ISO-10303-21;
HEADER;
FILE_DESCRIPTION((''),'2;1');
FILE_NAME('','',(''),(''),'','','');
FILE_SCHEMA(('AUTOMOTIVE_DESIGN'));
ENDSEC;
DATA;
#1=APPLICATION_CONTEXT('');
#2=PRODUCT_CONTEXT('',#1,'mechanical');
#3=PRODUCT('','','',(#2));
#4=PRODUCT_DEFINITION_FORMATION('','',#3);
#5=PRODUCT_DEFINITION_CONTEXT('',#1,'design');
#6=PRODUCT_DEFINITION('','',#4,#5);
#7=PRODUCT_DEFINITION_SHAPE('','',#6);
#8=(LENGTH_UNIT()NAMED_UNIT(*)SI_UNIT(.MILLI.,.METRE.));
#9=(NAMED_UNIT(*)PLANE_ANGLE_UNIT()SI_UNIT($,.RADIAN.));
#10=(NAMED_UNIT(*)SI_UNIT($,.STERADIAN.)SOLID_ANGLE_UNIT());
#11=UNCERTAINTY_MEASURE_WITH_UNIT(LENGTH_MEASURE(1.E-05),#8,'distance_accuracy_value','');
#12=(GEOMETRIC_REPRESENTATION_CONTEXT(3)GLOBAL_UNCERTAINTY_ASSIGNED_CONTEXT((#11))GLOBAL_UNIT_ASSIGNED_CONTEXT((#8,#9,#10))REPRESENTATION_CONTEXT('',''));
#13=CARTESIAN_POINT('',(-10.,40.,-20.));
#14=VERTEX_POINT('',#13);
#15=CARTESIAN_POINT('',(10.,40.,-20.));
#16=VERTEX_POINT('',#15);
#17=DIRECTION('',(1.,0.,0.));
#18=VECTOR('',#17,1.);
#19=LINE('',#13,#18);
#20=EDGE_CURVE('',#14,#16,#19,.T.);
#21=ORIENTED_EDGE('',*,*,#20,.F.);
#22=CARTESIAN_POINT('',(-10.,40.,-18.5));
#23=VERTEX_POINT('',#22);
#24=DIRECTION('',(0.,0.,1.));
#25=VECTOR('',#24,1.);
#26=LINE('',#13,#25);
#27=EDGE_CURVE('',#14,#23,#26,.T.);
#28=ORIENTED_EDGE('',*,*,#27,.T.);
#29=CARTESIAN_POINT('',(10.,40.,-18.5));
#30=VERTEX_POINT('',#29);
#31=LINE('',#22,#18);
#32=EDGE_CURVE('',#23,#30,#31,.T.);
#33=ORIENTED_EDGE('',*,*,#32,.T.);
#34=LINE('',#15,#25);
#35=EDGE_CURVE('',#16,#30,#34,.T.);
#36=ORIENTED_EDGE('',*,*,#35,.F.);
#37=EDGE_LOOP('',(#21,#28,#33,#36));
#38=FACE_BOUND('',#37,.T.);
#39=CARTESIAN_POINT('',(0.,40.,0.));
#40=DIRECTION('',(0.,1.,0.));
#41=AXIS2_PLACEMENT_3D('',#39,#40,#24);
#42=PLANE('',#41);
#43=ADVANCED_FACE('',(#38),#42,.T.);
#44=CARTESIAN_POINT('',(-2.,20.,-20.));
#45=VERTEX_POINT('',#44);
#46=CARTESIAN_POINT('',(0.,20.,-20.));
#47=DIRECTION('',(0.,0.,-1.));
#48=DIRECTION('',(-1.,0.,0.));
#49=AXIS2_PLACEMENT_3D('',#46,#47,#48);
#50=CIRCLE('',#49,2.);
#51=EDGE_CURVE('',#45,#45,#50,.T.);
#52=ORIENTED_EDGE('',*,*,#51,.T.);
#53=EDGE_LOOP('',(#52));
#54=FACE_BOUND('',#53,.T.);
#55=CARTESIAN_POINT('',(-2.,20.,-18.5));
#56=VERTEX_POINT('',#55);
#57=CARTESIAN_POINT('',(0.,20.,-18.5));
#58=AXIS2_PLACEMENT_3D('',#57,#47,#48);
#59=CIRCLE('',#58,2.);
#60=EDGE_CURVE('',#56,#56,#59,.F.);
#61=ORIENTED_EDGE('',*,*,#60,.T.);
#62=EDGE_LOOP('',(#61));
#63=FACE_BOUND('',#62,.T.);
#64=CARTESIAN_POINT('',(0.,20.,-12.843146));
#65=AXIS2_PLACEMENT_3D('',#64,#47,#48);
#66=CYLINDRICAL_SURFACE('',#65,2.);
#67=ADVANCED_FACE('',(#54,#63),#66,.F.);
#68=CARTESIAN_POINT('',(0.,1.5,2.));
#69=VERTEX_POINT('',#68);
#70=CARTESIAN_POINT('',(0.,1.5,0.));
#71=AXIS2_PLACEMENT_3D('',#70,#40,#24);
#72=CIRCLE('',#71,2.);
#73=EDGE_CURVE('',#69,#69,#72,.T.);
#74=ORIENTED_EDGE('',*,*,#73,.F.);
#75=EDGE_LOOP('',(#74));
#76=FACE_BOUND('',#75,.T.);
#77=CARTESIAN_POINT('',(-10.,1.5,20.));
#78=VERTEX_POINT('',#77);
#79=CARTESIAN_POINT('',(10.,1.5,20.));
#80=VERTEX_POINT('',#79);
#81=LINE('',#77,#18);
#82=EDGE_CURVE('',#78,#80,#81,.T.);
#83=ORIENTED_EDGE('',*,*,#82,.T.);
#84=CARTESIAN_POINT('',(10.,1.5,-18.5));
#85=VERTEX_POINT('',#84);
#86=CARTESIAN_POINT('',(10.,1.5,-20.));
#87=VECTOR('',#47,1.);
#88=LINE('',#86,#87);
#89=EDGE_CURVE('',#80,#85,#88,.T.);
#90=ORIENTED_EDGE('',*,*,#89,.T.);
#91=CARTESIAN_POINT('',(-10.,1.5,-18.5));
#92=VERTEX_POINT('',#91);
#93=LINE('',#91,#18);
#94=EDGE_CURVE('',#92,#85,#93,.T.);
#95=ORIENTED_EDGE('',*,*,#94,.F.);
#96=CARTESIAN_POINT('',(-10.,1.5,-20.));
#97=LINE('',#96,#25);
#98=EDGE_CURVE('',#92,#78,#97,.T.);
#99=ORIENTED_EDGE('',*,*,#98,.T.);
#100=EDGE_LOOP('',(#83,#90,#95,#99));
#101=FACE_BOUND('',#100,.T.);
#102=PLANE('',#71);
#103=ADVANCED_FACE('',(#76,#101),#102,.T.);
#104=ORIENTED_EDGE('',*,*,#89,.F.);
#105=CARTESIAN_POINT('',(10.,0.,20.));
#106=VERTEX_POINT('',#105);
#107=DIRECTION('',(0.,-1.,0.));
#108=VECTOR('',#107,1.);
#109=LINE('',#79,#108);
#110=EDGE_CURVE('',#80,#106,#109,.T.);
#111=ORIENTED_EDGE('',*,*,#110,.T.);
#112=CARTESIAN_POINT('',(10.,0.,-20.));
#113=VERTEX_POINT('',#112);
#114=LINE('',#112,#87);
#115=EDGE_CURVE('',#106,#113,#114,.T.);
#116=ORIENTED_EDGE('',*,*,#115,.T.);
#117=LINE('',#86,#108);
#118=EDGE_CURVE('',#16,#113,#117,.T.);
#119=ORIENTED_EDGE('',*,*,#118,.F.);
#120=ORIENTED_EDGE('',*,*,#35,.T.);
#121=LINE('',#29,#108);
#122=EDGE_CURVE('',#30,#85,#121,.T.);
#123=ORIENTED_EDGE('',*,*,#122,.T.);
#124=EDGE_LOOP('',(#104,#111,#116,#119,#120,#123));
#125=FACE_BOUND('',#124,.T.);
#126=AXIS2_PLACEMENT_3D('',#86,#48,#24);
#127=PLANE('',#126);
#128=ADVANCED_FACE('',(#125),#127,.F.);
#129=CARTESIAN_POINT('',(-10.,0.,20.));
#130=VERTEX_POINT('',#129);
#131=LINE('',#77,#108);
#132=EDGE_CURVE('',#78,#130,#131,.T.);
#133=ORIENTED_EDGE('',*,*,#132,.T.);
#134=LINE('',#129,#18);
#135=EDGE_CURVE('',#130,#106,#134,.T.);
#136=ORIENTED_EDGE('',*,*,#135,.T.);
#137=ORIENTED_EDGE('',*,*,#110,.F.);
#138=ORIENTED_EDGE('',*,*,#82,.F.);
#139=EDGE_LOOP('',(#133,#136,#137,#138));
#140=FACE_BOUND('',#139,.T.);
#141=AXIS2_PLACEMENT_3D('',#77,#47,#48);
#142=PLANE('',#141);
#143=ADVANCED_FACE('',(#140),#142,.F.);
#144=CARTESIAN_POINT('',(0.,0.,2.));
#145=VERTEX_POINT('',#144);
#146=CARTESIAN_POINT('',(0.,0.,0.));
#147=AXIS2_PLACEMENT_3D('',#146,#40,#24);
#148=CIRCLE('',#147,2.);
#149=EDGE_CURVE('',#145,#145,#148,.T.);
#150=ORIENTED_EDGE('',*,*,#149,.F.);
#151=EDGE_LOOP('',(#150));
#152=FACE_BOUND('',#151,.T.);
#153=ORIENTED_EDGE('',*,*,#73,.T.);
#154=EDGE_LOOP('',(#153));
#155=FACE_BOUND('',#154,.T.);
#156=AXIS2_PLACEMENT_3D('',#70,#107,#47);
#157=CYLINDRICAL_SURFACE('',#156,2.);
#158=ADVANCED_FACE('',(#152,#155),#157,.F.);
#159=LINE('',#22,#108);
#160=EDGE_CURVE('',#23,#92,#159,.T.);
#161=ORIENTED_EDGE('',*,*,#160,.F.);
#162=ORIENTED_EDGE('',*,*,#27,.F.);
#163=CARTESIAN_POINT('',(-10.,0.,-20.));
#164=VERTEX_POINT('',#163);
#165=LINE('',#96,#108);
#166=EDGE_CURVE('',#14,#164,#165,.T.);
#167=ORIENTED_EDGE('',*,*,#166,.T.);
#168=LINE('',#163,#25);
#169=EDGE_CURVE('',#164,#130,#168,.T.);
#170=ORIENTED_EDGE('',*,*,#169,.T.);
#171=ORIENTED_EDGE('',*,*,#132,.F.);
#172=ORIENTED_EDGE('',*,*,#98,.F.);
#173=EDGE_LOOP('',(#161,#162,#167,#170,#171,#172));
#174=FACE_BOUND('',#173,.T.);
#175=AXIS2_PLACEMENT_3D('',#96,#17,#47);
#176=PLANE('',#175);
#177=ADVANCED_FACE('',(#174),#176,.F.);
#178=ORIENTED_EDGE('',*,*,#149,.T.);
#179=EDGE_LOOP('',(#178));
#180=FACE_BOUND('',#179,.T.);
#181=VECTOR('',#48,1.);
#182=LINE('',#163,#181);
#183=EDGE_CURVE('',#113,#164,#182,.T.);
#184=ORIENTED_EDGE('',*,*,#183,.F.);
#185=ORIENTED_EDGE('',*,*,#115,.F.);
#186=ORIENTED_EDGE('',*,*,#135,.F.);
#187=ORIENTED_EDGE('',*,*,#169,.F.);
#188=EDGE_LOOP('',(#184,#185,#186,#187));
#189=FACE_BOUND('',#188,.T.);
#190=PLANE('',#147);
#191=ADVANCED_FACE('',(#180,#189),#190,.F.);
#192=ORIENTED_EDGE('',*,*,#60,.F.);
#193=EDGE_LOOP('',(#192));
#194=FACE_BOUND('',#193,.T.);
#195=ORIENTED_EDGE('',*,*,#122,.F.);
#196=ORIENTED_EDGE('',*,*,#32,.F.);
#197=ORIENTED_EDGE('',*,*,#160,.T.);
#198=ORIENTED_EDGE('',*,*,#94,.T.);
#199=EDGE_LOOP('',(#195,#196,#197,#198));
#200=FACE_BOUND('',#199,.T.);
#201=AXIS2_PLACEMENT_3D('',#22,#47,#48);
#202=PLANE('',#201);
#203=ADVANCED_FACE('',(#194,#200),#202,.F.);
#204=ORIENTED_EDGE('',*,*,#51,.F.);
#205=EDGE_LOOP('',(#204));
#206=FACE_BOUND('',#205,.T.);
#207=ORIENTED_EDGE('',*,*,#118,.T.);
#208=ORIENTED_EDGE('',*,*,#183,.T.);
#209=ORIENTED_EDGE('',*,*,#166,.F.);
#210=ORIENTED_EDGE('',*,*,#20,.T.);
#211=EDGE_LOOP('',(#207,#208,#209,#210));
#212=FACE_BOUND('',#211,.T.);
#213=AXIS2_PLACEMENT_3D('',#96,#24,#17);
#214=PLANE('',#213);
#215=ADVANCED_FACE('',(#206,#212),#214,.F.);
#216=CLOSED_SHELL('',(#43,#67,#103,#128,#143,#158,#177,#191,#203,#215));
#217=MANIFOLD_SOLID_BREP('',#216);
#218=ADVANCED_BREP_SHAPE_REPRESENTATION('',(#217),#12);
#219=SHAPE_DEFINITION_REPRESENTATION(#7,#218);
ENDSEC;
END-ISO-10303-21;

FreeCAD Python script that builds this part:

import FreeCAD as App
import Part
import Sketcher

V = App.Vector
Q = App.Units.Quantity

doc = App.newDocument("Part")
params = doc.addObject("Spreadsheet::Sheet", "Params")
for row, (alias, value) in enumerate([
    ("sketch1_diameter", "4 mm"),
    ("sketch1_width", "20 mm"),
    ("sketch1_height", "40 mm"),
    ("pad1_length", "1.5 mm"),
    ("sketch2_width", "20 mm"),
    ("sketch2_height", "1.5 mm"),
    ("pad2_length", "38.5 mm"),
    ("sketch3_diameter", "4 mm"),
    ("pocket1_length", "1.5 mm"),
], start=1):
    params.set(f"A{row}", alias)
    params.set(f"B{row}", "=" + value)
    params.setAlias(f"B{row}", alias)

body = doc.addObject("PartDesign::Body", "Body")

# Sketch on XZ plane
sketch1 = body.newObject("Sketcher::SketchObject", "Sketch")
sketch1.AttachmentSupport = (doc.getObject("XZ_Plane"), [""])
sketch1.MapMode = "FlatFace"
sketch1.addGeometry(Part.LineSegment(V(-10, -20, 0), V(-10, 20, 0)), False)
sketch1.addGeometry(Part.LineSegment(V(-10, 20, 0), V(10, 20, 0)), False)
sketch1.addGeometry(Part.LineSegment(V(10, 20, 0), V(10, -20, 0)), False)
sketch1.addGeometry(Part.LineSegment(V(10, -20, 0), V(-10, -20, 0)), False)
sketch1.addGeometry(Part.Circle(V(0, 0, 0), V(0, 0, 1), 2), False)
sketch1.addConstraint(Sketcher.Constraint("Coincident", 0, 2, 1, 1))
sketch1.addConstraint(Sketcher.Constraint("Coincident", 1, 2, 2, 1))
sketch1.addConstraint(Sketcher.Constraint("Coincident", 2, 2, 3, 1))
sketch1.addConstraint(Sketcher.Constraint("Coincident", 3, 2, 0, 1))
sketch1.addConstraint(Sketcher.Constraint("Vertical", 0))
sketch1.addConstraint(Sketcher.Constraint("Horizontal", 1))
sketch1.addConstraint(Sketcher.Constraint("Vertical", 2))
sketch1.addConstraint(Sketcher.Constraint("Horizontal", 3))
sketch1.addConstraint(Sketcher.Constraint("Coincident", 4, 3, -1, 1))
sketch1.addConstraint(Sketcher.Constraint("Symmetric", 0, 2, 2, 2, -1, 1))
sketch1.addConstraint(Sketcher.Constraint("Diameter", 4, Q("4 mm")))
sketch1.addConstraint(Sketcher.Constraint("DistanceX", 1, 1, 1, 2, Q("20 mm")))
sketch1.addConstraint(Sketcher.Constraint("DistanceY", 0, 1, 0, 2, Q("40 mm")))
sketch1.setExpression("Constraints[10]", "Params.sketch1_diameter")
sketch1.setExpression("Constraints[11]", "Params.sketch1_width")
sketch1.setExpression("Constraints[12]", "Params.sketch1_height")
pad1 = body.newObject("PartDesign::Pad", "Pad")
pad1.Profile = sketch1
pad1.setExpression("Length", "Params.pad1_length")
pad1.Reversed = True

# Sketch on XZ plane
sketch2 = body.newObject("Sketcher::SketchObject", "Sketch001")
sketch2.AttachmentSupport = (doc.getObject("XZ_Plane"), [""])
sketch2.MapMode = "FlatFace"
sketch2.AttachmentOffset = App.Placement(V(0, 0, -1.5), App.Rotation())
sketch2.addGeometry(Part.LineSegment(V(-10, -20, 0), V(-10, -18.5, 0)), False)
sketch2.addGeometry(Part.LineSegment(V(-10, -18.5, 0), V(10, -18.5, 0)), False)
sketch2.addGeometry(Part.LineSegment(V(10, -18.5, 0), V(10, -20, 0)), False)
sketch2.addGeometry(Part.LineSegment(V(10, -20, 0), V(-10, -20, 0)), False)
sketch2.addConstraint(Sketcher.Constraint("Coincident", 0, 2, 1, 1))
sketch2.addConstraint(Sketcher.Constraint("Coincident", 1, 2, 2, 1))
sketch2.addConstraint(Sketcher.Constraint("Coincident", 2, 2, 3, 1))
sketch2.addConstraint(Sketcher.Constraint("Coincident", 3, 2, 0, 1))
sketch2.addConstraint(Sketcher.Constraint("Vertical", 0))
sketch2.addConstraint(Sketcher.Constraint("Horizontal", 1))
sketch2.addConstraint(Sketcher.Constraint("Vertical", 2))
sketch2.addConstraint(Sketcher.Constraint("Horizontal", 3))
sketch2.addConstraint(Sketcher.Constraint("DistanceX", 1, 1, 1, 2, Q("20 mm")))
sketch2.addConstraint(Sketcher.Constraint("DistanceY", 0, 1, 0, 2, Q("1.5 mm")))
sketch2.addConstraint(Sketcher.Constraint("DistanceX", 0, 2, -1, 1, Q("10 mm")))
sketch2.addConstraint(Sketcher.Constraint("DistanceY", 2, 2, -1, 1, Q("20 mm")))
sketch2.setExpression("Constraints[8]", "Params.sketch2_width")
sketch2.setExpression("Constraints[9]", "Params.sketch2_height")
pad2 = body.newObject("PartDesign::Pad", "Pad001")
pad2.Profile = sketch2
pad2.setExpression("Length", "Params.pad2_length")
pad2.Reversed = True

# Sketch on XY plane
sketch3 = body.newObject("Sketcher::SketchObject", "Sketch002")
sketch3.AttachmentSupport = (doc.getObject("XY_Plane"), [""])
sketch3.MapMode = "FlatFace"
sketch3.AttachmentOffset = App.Placement(V(0, 0, -20), App.Rotation())
sketch3.addGeometry(Part.Circle(V(0, 20, 0), V(0, 0, 1), 2), False)
sketch3.addConstraint(Sketcher.Constraint("PointOnObject", 0, 3, -2))
sketch3.addConstraint(Sketcher.Constraint("Diameter", 0, Q("4 mm")))
sketch3.addConstraint(Sketcher.Constraint("DistanceY", -1, 1, 0, 3, Q("20 mm")))
sketch3.setExpression("Constraints[1]", "Params.sketch3_diameter")
pocket1 = body.newObject("PartDesign::Pocket", "Pocket")
pocket1.Profile = sketch3
pocket1.setExpression("Length", "Params.pocket1_length")
pocket1.Reversed = True

doc.recompute()
